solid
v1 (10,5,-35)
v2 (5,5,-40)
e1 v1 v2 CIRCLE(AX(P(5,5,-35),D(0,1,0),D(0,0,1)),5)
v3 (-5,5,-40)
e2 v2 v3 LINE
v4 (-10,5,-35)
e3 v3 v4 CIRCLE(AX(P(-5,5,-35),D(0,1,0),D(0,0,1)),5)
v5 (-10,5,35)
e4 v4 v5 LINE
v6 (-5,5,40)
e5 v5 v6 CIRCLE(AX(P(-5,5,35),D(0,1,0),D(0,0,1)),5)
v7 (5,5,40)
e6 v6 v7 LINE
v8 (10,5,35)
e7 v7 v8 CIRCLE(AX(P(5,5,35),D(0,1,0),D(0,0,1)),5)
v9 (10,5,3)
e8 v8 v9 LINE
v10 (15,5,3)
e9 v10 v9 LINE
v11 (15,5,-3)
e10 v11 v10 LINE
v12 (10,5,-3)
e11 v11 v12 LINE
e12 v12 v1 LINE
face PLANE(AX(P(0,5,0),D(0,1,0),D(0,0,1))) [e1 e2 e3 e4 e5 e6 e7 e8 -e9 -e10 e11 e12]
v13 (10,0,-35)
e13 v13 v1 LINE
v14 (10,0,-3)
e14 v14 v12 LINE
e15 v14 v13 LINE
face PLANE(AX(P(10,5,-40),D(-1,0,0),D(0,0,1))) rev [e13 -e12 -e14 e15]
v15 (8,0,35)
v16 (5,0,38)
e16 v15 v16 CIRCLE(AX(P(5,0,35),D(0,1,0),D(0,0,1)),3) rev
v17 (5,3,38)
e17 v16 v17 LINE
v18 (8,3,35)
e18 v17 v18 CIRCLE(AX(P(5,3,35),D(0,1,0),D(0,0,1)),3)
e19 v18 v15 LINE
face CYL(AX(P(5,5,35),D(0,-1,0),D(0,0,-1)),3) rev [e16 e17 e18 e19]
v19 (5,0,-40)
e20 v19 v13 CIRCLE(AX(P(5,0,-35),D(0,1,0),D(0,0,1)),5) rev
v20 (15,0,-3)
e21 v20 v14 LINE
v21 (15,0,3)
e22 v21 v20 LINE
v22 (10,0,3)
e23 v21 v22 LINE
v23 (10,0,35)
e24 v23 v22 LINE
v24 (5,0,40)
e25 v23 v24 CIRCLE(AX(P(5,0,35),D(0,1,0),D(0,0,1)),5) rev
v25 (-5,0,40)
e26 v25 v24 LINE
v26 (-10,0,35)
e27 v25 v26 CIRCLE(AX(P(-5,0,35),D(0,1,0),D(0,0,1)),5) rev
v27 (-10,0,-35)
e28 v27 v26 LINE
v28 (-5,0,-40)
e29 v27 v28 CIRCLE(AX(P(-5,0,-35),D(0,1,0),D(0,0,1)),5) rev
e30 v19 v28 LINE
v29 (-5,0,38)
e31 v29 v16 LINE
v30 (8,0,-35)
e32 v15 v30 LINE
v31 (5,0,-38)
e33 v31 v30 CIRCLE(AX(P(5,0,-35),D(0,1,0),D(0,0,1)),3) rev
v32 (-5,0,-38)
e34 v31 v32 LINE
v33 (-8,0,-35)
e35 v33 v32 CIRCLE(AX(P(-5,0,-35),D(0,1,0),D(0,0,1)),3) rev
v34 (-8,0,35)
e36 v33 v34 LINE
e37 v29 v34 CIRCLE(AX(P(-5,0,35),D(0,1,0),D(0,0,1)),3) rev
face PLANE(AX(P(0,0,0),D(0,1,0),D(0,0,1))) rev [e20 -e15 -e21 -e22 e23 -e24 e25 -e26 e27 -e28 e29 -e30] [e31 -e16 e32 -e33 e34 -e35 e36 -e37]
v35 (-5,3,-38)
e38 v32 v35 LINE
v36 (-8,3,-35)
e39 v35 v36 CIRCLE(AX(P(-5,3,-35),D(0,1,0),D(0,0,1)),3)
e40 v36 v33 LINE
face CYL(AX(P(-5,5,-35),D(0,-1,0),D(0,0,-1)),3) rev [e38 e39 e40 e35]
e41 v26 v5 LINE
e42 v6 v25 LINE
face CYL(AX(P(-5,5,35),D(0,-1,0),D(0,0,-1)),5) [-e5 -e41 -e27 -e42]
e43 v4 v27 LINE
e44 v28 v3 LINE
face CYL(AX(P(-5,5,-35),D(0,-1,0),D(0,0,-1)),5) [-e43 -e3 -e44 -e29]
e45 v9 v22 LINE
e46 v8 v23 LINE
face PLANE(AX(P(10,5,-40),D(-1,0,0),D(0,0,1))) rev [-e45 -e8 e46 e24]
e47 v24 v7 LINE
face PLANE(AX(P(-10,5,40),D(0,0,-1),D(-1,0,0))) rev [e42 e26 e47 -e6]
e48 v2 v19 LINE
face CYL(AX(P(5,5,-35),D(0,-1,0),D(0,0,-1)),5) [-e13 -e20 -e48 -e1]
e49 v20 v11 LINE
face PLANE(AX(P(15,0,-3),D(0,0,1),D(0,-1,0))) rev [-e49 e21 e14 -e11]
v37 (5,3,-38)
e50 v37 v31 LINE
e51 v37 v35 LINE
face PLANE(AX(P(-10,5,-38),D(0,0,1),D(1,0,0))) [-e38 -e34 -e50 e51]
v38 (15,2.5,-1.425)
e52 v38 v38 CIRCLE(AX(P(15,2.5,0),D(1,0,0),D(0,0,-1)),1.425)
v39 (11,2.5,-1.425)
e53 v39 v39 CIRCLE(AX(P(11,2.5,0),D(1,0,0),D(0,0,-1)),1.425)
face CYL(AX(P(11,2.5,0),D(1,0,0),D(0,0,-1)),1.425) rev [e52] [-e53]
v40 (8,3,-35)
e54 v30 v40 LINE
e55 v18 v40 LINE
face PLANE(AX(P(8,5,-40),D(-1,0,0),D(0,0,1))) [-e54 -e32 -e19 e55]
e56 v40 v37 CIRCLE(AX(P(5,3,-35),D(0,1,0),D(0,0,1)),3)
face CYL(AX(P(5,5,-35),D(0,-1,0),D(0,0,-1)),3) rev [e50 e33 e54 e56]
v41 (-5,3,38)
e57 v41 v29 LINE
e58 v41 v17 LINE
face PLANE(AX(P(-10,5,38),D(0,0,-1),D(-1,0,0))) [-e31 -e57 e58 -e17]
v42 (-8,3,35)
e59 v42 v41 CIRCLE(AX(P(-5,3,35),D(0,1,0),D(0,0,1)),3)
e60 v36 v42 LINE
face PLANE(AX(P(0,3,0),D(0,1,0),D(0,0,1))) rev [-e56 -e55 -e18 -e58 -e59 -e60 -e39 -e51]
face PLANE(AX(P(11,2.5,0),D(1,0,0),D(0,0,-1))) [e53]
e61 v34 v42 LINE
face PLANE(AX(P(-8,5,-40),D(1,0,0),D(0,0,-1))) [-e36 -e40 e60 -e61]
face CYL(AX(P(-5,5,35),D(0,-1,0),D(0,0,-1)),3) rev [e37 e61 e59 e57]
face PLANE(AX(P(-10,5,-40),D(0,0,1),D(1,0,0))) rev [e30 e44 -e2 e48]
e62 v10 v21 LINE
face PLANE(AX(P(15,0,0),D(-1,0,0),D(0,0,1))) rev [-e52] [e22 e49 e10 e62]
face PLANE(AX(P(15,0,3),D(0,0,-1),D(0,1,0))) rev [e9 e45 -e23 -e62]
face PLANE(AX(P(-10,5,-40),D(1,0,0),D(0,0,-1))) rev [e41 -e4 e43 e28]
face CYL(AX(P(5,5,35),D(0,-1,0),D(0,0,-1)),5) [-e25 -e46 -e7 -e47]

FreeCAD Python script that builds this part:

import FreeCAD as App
import Part
import Sketcher


def edges_at(feature, points):
    """Names of the edges that pass closest to the given points."""
    edges = feature.Shape.Edges
    near = lambda p: min(range(len(edges)), key=lambda i: edges[i].distToShape(Part.Vertex(*p))[0])
    return sorted({f"Edge{near(p) + 1}" for p in points})


def faces_at(feature, points):
    """Names of the faces that lie closest to the given points."""
    faces = feature.Shape.Faces
    near = lambda p: min(range(len(faces)), key=lambda i: faces[i].distToShape(Part.Vertex(*p))[0])
    return sorted({f"Face{near(p) + 1}" for p in points})


def add_polygon(sketch, points):
    """Adds a closed chain of lines whose ends are joined by coincident constraints."""
    first, n = sketch.GeometryCount, len(points)
    for a, b in zip(points, points[1:] + points[:1]):
        sketch.addGeometry(Part.LineSegment(App.Vector(*a, 0), App.Vector(*b, 0)), False)
    for i in range(n):
        sketch.addConstraint(Sketcher.Constraint("Coincident", first + i, 2, first + (i + 1) % n, 1))

doc = App.newDocument("Part")
body = doc.addObject("PartDesign::Body", "Body")

# Sketch on XZ plane
sketch1 = body.newObject("Sketcher::SketchObject", "Sketch")
sketch1.AttachmentSupport = (doc.getObject("XZ_Plane"), [""])
sketch1.MapMode = "FlatFace"
add_polygon(sketch1, [(-10, -40), (-10, 40), (10, 40), (10, -40)])  # lines 0-3
sketch1.addConstraint(Sketcher.Constraint("Vertical", 0))
sketch1.addConstraint(Sketcher.Constraint("Horizontal", 1))
sketch1.addConstraint(Sketcher.Constraint("Vertical", 2))
sketch1.addConstraint(Sketcher.Constraint("Horizontal", 3))
sketch1.addConstraint(Sketcher.Constraint("Symmetric", 0, 2, 2, 2, -1, 1))
sketch1.addConstraint(Sketcher.Constraint("DistanceX", 1, 1, 1, 2, 20.0))
sketch1.addConstraint(Sketcher.Constraint("DistanceY", 0, 1, 0, 2, 80.0))
pad1 = body.newObject("PartDesign::Pad", "Pad")
pad1.Profile = sketch1
pad1.Length = 5
pad1.Reversed = True
doc.recompute()

fillet = body.newObject("PartDesign::Fillet", "Fillet")
fillet.Base = (pad1, edges_at(pad1, [
    (10, 2.5, 40),
    (-10, 2.5, 40),
    (-10, 2.5, -40),
    (10, 2.5, -40),
]))
fillet.Radius = 5
doc.recompute()

thickness = body.newObject("PartDesign::Thickness", "Thickness")
thickness.Base = (fillet, faces_at(fillet, [(0, 0, 0)]))
thickness.Value = 2
thickness.Reversed = True
thickness.Join = "Intersection"

# Sketch on YZ plane
sketch2 = body.newObject("Sketcher::SketchObject", "Sketch001")
sketch2.AttachmentSupport = (doc.getObject("YZ_Plane"), [""])
sketch2.MapMode = "FlatFace"
sketch2.AttachmentOffset = App.Placement(App.Vector(0, 0, 10), App.Rotation())
add_polygon(sketch2, [(5, 3), (0, 3), (0, -3), (5, -3)])  # lines 0-3
sketch2.addConstraint(Sketcher.Constraint("Horizontal", 0))
sketch2.addConstraint(Sketcher.Constraint("Vertical", 1))
sketch2.addConstraint(Sketcher.Constraint("Horizontal", 2))
sketch2.addConstraint(Sketcher.Constraint("Vertical", 3))
sketch2.addConstraint(Sketcher.Constraint("Symmetric", 0, 2, 1, 2, -1, 1))
sketch2.addConstraint(Sketcher.Constraint("DistanceX", 0, 2, 0, 1, 5.0))
sketch2.addConstraint(Sketcher.Constraint("DistanceY", 1, 2, 1, 1, 6.0))
pad2 = body.newObject("PartDesign::Pad", "Pad001")
pad2.Profile = sketch2
pad2.Length = 5

# Sketch on YZ plane
sketch3 = body.newObject("Sketcher::SketchObject", "Sketch002")
sketch3.AttachmentSupport = (doc.getObject("YZ_Plane"), [""])
sketch3.MapMode = "FlatFace"
sketch3.AttachmentOffset = App.Placement(App.Vector(0, 0, 15), App.Rotation())
sketch3.addGeometry(Part.Circle(App.Vector(2.5, 0, 0), App.Vector(0, 0, 1), 1.425), False)
sketch3.addConstraint(Sketcher.Constraint("PointOnObject", 0, 3, -1))
sketch3.addConstraint(Sketcher.Constraint("Diameter", 0, 2.85))
sketch3.addConstraint(Sketcher.Constraint("DistanceX", -1, 1, 0, 3, 2.5))
pocket1 = body.newObject("PartDesign::Pocket", "Pocket")
pocket1.Profile = sketch3
pocket1.Length = 4

doc.recompute()
